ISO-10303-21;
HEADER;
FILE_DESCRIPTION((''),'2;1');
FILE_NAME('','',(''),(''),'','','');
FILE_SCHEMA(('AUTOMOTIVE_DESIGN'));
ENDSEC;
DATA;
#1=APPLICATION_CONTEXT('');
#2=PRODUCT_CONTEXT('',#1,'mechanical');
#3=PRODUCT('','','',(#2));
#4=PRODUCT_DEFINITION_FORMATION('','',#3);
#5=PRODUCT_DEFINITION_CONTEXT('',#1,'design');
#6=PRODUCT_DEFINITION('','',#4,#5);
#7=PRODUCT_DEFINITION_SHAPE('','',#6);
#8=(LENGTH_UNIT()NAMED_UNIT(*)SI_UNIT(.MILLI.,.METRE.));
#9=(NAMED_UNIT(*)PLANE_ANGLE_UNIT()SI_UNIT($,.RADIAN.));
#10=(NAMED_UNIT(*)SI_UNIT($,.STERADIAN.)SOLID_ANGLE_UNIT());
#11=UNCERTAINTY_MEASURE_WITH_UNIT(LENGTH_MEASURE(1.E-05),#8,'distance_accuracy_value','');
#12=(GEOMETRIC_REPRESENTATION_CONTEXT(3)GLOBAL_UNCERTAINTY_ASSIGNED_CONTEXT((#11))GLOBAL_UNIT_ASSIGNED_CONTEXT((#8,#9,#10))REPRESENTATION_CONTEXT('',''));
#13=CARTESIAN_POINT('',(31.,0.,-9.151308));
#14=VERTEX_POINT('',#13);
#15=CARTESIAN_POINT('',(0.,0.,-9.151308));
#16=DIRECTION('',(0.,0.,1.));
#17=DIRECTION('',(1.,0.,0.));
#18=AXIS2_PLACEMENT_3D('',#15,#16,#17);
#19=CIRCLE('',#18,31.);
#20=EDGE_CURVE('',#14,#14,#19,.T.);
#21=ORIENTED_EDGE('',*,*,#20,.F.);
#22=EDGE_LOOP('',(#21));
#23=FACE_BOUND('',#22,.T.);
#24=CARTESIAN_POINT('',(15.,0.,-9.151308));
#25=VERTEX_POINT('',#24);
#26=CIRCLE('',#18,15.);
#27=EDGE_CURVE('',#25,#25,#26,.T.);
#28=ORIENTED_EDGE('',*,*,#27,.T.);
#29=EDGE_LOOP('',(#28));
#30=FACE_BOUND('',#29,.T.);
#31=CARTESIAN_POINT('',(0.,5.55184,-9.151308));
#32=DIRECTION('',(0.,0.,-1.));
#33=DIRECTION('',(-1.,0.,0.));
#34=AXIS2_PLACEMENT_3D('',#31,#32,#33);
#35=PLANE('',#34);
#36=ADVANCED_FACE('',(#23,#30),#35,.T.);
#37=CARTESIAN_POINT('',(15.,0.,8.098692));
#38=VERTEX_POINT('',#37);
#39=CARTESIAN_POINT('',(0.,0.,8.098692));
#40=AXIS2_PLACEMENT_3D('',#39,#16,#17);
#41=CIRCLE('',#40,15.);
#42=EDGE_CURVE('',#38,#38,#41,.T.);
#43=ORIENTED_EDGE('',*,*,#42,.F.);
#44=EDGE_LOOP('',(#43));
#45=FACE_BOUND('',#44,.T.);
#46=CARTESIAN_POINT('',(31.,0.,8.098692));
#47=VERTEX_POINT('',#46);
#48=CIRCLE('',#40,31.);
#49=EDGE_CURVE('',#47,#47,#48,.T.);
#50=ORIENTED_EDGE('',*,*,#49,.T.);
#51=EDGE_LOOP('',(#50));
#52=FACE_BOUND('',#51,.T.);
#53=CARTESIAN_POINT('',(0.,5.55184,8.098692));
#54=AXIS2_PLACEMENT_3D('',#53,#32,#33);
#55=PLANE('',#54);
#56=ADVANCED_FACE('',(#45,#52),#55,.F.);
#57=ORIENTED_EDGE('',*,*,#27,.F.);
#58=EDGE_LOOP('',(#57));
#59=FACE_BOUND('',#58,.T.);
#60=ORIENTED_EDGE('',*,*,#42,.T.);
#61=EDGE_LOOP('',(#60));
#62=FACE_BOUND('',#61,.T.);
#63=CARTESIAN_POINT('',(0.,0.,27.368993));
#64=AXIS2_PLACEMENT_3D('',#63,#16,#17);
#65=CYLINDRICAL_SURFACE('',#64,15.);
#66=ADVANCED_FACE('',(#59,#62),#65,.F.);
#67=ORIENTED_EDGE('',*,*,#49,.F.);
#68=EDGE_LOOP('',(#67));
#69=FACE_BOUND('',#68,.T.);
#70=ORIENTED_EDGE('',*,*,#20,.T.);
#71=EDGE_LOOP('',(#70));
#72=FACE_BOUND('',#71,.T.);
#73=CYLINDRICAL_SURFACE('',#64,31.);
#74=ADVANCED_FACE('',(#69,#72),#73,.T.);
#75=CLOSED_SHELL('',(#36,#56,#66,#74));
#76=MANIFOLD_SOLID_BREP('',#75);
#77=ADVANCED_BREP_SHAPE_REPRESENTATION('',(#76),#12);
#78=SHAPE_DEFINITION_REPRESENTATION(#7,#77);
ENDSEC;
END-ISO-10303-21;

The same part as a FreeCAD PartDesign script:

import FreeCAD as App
import Part
import Sketcher
Q = App.Units.Quantity

doc = App.newDocument("Part")
body = doc.addObject("PartDesign::Body", "Body")

# Sketch on YZ plane
sketch1 = doc.addObject("Sketcher::SketchObject", "Sketch")
body.addObject(sketch1)
sketch1.AttachmentSupport = (doc.YZ_Plane, [""])
sketch1.MapMode = "FlatFace"
sketch1.addGeometry(Part.LineSegment(App.Vector(31, 8, 0), App.Vector(15, 8, 0)), False)
sketch1.addGeometry(Part.LineSegment(App.Vector(15, 8, 0), App.Vector(15, -9, 0)), False)
sketch1.addGeometry(Part.LineSegment(App.Vector(15, -9, 0), App.Vector(31, -9, 0)), False)
sketch1.addGeometry(Part.LineSegment(App.Vector(31, -9, 0), App.Vector(31, 8, 0)), False)
sketch1.addConstraint(Sketcher.Constraint("Coincident", 0, 2, 1, 1))
sketch1.addConstraint(Sketcher.Constraint("Coincident", 1, 2, 2, 1))
sketch1.addConstraint(Sketcher.Constraint("Coincident", 2, 2, 3, 1))
sketch1.addConstraint(Sketcher.Constraint("Coincident", 3, 2, 0, 1))
sketch1.addConstraint(Sketcher.Constraint("Horizontal", 0))
sketch1.addConstraint(Sketcher.Constraint("Vertical", 1))
sketch1.addConstraint(Sketcher.Constraint("Horizontal", 2))
sketch1.addConstraint(Sketcher.Constraint("Vertical", 3))
sketch1.addConstraint(Sketcher.Constraint("DistanceX", 0, 2, 0, 1, Q("16 mm")))
sketch1.addConstraint(Sketcher.Constraint("DistanceX", -1, 1, 0, 2, Q("15 mm")))
sketch1.addConstraint(Sketcher.Constraint("DistanceY", 1, 2, 1, 1, Q("17.25 mm")))
sketch1.addConstraint(Sketcher.Constraint("DistanceY", -1, 1, 0, 2, Q("8.098692 mm")))
revolution = doc.addObject("PartDesign::Revolution", "Revolution")
body.addObject(revolution)
revolution.Profile = sketch1
revolution.ReferenceAxis = (sketch1, ["V_Axis"])
revolution.Angle = 360

doc.recompute()
